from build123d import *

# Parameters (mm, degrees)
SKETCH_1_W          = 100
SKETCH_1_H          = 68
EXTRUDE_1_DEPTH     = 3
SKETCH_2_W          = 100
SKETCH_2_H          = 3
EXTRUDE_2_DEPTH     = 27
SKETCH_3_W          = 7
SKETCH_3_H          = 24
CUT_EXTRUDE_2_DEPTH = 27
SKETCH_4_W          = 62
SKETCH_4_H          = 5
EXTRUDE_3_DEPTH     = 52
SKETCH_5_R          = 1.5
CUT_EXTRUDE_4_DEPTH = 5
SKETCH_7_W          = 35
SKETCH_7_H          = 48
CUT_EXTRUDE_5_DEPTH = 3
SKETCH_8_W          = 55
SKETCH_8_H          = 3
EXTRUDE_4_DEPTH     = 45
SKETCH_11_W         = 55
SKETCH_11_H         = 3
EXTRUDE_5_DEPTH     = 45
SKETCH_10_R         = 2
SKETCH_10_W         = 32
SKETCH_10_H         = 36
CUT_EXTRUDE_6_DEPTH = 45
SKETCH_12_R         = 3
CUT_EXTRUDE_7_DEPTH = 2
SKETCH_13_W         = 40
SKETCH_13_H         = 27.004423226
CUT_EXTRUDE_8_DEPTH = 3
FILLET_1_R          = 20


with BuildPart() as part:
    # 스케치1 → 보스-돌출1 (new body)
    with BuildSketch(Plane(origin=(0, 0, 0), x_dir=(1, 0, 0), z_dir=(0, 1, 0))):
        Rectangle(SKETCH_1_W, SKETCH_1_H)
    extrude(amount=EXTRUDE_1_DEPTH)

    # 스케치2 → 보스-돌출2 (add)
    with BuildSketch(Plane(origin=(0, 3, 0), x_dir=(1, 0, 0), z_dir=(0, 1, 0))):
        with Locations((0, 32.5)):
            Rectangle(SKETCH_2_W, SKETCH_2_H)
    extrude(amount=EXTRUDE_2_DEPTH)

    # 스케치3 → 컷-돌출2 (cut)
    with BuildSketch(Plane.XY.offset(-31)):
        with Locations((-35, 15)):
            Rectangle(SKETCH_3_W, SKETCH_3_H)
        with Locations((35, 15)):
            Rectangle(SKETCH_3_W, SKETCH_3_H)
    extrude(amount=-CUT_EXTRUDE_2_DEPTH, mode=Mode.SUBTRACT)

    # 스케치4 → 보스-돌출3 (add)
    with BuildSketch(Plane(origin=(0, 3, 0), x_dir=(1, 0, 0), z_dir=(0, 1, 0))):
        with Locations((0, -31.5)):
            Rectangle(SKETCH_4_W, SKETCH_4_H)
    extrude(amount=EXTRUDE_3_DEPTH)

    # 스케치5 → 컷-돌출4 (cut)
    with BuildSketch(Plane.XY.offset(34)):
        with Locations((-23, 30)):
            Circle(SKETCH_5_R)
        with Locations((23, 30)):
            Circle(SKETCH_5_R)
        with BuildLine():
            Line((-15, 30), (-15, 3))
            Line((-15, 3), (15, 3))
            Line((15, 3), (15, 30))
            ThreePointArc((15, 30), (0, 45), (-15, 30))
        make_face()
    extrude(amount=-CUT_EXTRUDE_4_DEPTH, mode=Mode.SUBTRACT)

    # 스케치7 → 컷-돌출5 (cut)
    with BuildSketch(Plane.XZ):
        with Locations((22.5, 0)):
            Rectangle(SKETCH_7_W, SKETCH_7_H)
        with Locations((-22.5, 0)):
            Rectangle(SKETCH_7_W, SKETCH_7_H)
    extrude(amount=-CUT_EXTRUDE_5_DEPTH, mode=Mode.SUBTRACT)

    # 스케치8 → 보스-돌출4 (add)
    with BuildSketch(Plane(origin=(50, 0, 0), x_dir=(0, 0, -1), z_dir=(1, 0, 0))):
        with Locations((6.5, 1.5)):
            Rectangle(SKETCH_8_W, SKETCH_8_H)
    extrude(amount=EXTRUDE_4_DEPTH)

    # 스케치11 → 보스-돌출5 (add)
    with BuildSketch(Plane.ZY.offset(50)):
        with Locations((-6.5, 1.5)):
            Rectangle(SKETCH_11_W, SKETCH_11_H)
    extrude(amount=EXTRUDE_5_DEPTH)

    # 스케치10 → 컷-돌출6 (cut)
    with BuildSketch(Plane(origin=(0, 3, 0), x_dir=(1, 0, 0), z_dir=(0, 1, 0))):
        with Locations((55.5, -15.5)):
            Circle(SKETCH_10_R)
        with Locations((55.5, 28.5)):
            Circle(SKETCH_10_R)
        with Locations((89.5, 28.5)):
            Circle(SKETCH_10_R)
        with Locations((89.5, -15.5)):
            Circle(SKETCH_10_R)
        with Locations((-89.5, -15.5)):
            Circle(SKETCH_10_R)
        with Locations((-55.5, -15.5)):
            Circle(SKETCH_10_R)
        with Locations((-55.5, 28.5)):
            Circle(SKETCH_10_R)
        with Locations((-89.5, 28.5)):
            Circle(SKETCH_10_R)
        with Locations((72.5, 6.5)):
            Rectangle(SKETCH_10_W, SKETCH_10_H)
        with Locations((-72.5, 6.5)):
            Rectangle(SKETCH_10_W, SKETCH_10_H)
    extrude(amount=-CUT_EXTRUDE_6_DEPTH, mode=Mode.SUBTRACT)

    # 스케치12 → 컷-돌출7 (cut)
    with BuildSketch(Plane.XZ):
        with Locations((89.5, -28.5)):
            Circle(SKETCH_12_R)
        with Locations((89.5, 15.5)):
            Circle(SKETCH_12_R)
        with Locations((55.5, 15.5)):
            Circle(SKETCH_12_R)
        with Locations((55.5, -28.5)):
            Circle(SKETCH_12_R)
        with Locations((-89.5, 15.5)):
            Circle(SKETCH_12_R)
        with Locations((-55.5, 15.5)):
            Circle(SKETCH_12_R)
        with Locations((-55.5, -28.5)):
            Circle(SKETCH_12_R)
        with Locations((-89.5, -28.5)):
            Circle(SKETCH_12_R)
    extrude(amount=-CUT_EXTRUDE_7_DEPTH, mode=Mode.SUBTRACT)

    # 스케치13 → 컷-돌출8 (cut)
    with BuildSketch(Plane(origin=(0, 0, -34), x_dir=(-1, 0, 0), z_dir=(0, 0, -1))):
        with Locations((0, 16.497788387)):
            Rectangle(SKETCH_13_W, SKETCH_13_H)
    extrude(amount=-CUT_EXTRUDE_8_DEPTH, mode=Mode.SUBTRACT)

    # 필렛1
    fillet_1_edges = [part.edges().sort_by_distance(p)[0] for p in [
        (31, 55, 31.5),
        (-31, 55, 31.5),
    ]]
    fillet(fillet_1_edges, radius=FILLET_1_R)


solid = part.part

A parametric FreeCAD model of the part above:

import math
import FreeCAD as App
import Part
import Sketcher


def edges_at(feature, points):
    """Names of the edges that pass closest to the given points."""
    edges = feature.Shape.Edges
    near = lambda p: min(range(len(edges)), key=lambda i: edges[i].distToShape(Part.Vertex(*p))[0])
    return sorted({f"Edge{near(p) + 1}" for p in points})


def add_polygon(sketch, points):
    """Adds a closed chain of lines whose ends are joined by coincident constraints."""
    first, n = sketch.GeometryCount, len(points)
    for a, b in zip(points, points[1:] + points[:1]):
        sketch.addGeometry(Part.LineSegment(App.Vector(*a, 0), App.Vector(*b, 0)), False)
    for i in range(n):
        sketch.addConstraint(Sketcher.Constraint("Coincident", first + i, 2, first + (i + 1) % n, 1))

doc = App.newDocument("Part")
params = doc.addObject("Spreadsheet::Sheet", "Params")
for row, (alias, value) in enumerate([
    ("sketch1_width", "100 mm"),
    ("sketch1_height", "68 mm"),
    ("pad1_length", "3 mm"),
    ("sketch2_width", "100 mm"),
    ("sketch2_height", "3 mm"),
    ("pad2_length", "27 mm"),
    ("sketch3_width", "7 mm"),
    ("sketch3_height", "24 mm"),
    ("pocket1_length", "27 mm"),
    ("sketch4_width", "62 mm"),
    ("sketch4_height", "5 mm"),
    ("pad3_length", "52 mm"),
    ("sketch5_diameter", "3 mm"),
    ("sketch5_radius", "15 mm"),
    ("sketch5_height", "27 mm"),
    ("pocket2_length", "5 mm"),
    ("sketch6_width", "35 mm"),
    ("sketch6_height", "48 mm"),
    ("pocket3_length", "3 mm"),
    ("sketch7_width", "3 mm"),
    ("sketch7_height", "55 mm"),
    ("pad4_length", "45 mm"),
    ("sketch8_width", "3 mm"),
    ("sketch8_height", "55 mm"),
    ("pad5_length", "45 mm"),
    ("sketch9_diameter", "4 mm"),
    ("sketch9_width", "32 mm"),
    ("sketch9_height", "36 mm"),
    ("pocket4_length", "45 mm"),
    ("sketch10_diameter", "6 mm"),
    ("pocket5_length", "2 mm"),
    ("sketch11_width", "40 mm"),
    ("pocket6_length", "3 mm"),
    ("fillet_radius", "20 mm"),
], start=1):
    params.set(f"A{row}", alias)
    params.set(f"B{row}", "=" + value)
    params.setAlias(f"B{row}", alias)

body = doc.addObject("PartDesign::Body", "Body")

sketch1 = doc.addObject("Sketcher::SketchObject", "Sketch")
body.addObject(sketch1)
sketch1.AttachmentSupport = (doc.XZ_Plane, [""])
sketch1.MapMode = "FlatFace"
add_polygon(sketch1, [(-50, -34), (-50, 34), (50, 34), (50, -34)])
sketch1.addConstraint([
    Sketcher.Constraint("Vertical", 0),
    Sketcher.Constraint("Horizontal", 1),
    Sketcher.Constraint("Vertical", 2),
    Sketcher.Constraint("Horizontal", 3),
    Sketcher.Constraint("Symmetric", 0, 2, 2, 2, -1, 1),
    Sketcher.Constraint("DistanceX", 1, 1, 1, 2, 100.0),
    Sketcher.Constraint("DistanceY", 0, 1, 0, 2, 68.0),
])
sketch1.setExpression("Constraints[9]", "Params.sketch1_width")
sketch1.setExpression("Constraints[10]", "Params.sketch1_height")
pad1 = doc.addObject("PartDesign::Pad", "Pad")
body.addObject(pad1)
pad1.Profile = sketch1
pad1.setExpression("Length", "Params.pad1_length")
pad1.Reversed = True

sketch2 = doc.addObject("Sketcher::SketchObject", "Sketch001")
body.addObject(sketch2)
sketch2.AttachmentSupport = (doc.XZ_Plane, [""])
sketch2.MapMode = "FlatFace"
sketch2.AttachmentOffset = App.Placement(App.Vector(0, 0, -3), App.Rotation())
add_polygon(sketch2, [(-50, -34), (-50, -31), (50, -31), (50, -34)])
sketch2.addConstraint([
    Sketcher.Constraint("Vertical", 0),
    Sketcher.Constraint("Horizontal", 1),
    Sketcher.Constraint("Vertical", 2),
    Sketcher.Constraint("Horizontal", 3),
    Sketcher.Constraint("DistanceX", 1, 1, 1, 2, 100.0),
    Sketcher.Constraint("DistanceY", 0, 1, 0, 2, 3.0),
    Sketcher.Constraint("DistanceX", 0, 2, -1, 1, 50.0),
    Sketcher.Constraint("DistanceY", 0, 2, -1, 1, 31.0),
])
sketch2.setExpression("Constraints[8]", "Params.sketch2_width")
sketch2.setExpression("Constraints[9]", "Params.sketch2_height")
pad2 = doc.addObject("PartDesign::Pad", "Pad001")
body.addObject(pad2)
pad2.Profile = sketch2
pad2.setExpression("Length", "Params.pad2_length")
pad2.Reversed = True

sketch3 = doc.addObject("Sketcher::SketchObject", "Sketch002")
body.addObject(sketch3)
sketch3.AttachmentSupport = (doc.XY_Plane, [""])
sketch3.MapMode = "FlatFace"
sketch3.AttachmentOffset = App.Placement(App.Vector(0, 0, -31), App.Rotation())
add_polygon(sketch3, [(-38, 27), (-38, 3), (-32, 3), (-32, 27)])
add_polygon(sketch3, [(32, 27), (32, 3), (38, 3), (38, 27)])
sketch3.addConstraint([
    Sketcher.Constraint("Vertical", 0),
    Sketcher.Constraint("Horizontal", 1),
    Sketcher.Constraint("Vertical", 2),
    Sketcher.Constraint("Horizontal", 3),
    Sketcher.Constraint("Vertical", 4),
    Sketcher.Constraint("Horizontal", 5),
    Sketcher.Constraint("Vertical", 6),
    Sketcher.Constraint("Horizontal", 7),
    Sketcher.Constraint("Symmetric", 1, 2, 4, 2, -2),
    Sketcher.Constraint("Symmetric", 3, 2, 6, 2, -2),
    Sketcher.Constraint("DistanceX", 1, 1, 1, 2, 7.0),
    Sketcher.Constraint("DistanceY", 0, 2, 0, 1, 24.0),
    Sketcher.Constraint("DistanceY", -1, 1, 0, 2, 3.0),
    Sketcher.Constraint("DistanceX", 1, 2, 4, 2, 63.0),
])
sketch3.setExpression("Constraints[18]", "Params.sketch3_width")
sketch3.setExpression("Constraints[19]", "Params.sketch3_height")
pocket1 = doc.addObject("PartDesign::Pocket", "Pocket")
body.addObject(pocket1)
pocket1.Profile = sketch3
pocket1.setExpression("Length", "Params.pocket1_length")

sketch4 = doc.addObject("Sketcher::SketchObject", "Sketch003")
body.addObject(sketch4)
sketch4.AttachmentSupport = (doc.XZ_Plane, [""])
sketch4.MapMode = "FlatFace"
sketch4.AttachmentOffset = App.Placement(App.Vector(0, 0, -3), App.Rotation())
add_polygon(sketch4, [(-31, 29), (-31, 34), (31, 34), (31, 29)])
sketch4.addConstraint([
    Sketcher.Constraint("Vertical", 0),
    Sketcher.Constraint("Horizontal", 1),
    Sketcher.Constraint("Vertical", 2),
    Sketcher.Constraint("Horizontal", 3),
    Sketcher.Constraint("DistanceX", 1, 1, 1, 2, 62.0),
    Sketcher.Constraint("DistanceY", 0, 1, 0, 2, 5.0),
    Sketcher.Constraint("DistanceX", 0, 2, -1, 1, 31.0),
    Sketcher.Constraint("DistanceY", -1, 1, 0, 2, 34.0),
])
sketch4.setExpression("Constraints[8]", "Params.sketch4_width")
sketch4.setExpression("Constraints[9]", "Params.sketch4_height")
pad3 = doc.addObject("PartDesign::Pad", "Pad002")
body.addObject(pad3)
pad3.Profile = sketch4
pad3.setExpression("Length", "Params.pad3_length")
pad3.Reversed = True

sketch5 = doc.addObject("Sketcher::SketchObject", "Sketch004")
body.addObject(sketch5)
sketch5.AttachmentSupport = (doc.XY_Plane, [""])
sketch5.MapMode = "FlatFace"
sketch5.AttachmentOffset = App.Placement(App.Vector(0, 0, 34), App.Rotation())
sketch5.addGeometry([
    Part.Circle(App.Vector(-23, 30, 0), App.Vector(0, 0, 1), 1.5),
    Part.Circle(App.Vector(23, 30, 0), App.Vector(0, 0, 1), 1.5),
    Part.LineSegment(App.Vector(-15, 30, 0), App.Vector(-15, 3, 0)),
    Part.LineSegment(App.Vector(-15, 3, 0), App.Vector(15, 3, 0)),
    Part.LineSegment(App.Vector(15, 3, 0), App.Vector(15, 30, 0)),
    Part.ArcOfCircle(Part.Circle(App.Vector(0, 30, 0), App.Vector(0, 0, 1), 15), math.radians(0), math.radians(180)),
], False)
sketch5.addConstraint([
    Sketcher.Constraint("Coincident", 2, 2, 3, 1),
    Sketcher.Constraint("Coincident", 3, 2, 4, 1),
    Sketcher.Constraint("Tangent", 4, 2, 5, 1),
    Sketcher.Constraint("Tangent", 5, 2, 2, 1),
    Sketcher.Constraint("Vertical", 2),
    Sketcher.Constraint("Horizontal", 3),
    Sketcher.Constraint("Vertical", 4),
    Sketcher.Constraint("Equal", 0, 1),
    Sketcher.Constraint("Symmetric", 0, 3, 1, 3, -2),
    Sketcher.Constraint("PointOnObject", 5, 3, -2),
    Sketcher.Constraint("Horizontal", 1, 3, 5, 3),
    Sketcher.Constraint("Diameter", 0, 3.0),
    Sketcher.Constraint("Radius", 5, 15.0),
    Sketcher.Constraint("DistanceY", 2, 2, 2, 1, 27.0),
    Sketcher.Constraint("DistanceX", 0, 3, -1, 1, 23.0),
    Sketcher.Constraint("DistanceY", -1, 1, 0, 3, 30.0),
])
sketch5.setExpression("Constraints[11]", "Params.sketch5_diameter")
sketch5.setExpression("Constraints[12]", "Params.sketch5_radius")
sketch5.setExpression("Constraints[13]", "Params.sketch5_height")
pocket2 = doc.addObject("PartDesign::Pocket", "Pocket001")
body.addObject(pocket2)
pocket2.Profile = sketch5
pocket2.setExpression("Length", "Params.pocket2_length")

sketch6 = doc.addObject("Sketcher::SketchObject", "Sketch005")
body.addObject(sketch6)
sketch6.AttachmentSupport = (doc.XZ_Plane, [""])
sketch6.MapMode = "FlatFace"
add_polygon(sketch6, [(5, 24), (5, -24), (40, -24), (40, 24)])
add_polygon(sketch6, [(-40, 24), (-40, -24), (-5, -24), (-5, 24)])
sketch6.addConstraint([
    Sketcher.Constraint("Vertical", 0),
    Sketcher.Constraint("Horizontal", 1),
    Sketcher.Constraint("Vertical", 2),
    Sketcher.Constraint("Horizontal", 3),
    Sketcher.Constraint("Vertical", 4),
    Sketcher.Constraint("Horizontal", 5),
    Sketcher.Constraint("Vertical", 6),
    Sketcher.Constraint("Horizontal", 7),
    Sketcher.Constraint("Symmetric", 2, 2, 4, 2, -1, 1),
    Sketcher.Constraint("Symmetric", 0, 2, 6, 2, -1, 1),
    Sketcher.Constraint("Horizontal", 1, 2, 4, 2),
    Sketcher.Constraint("DistanceX", 1, 1, 1, 2, 35.0),
    Sketcher.Constraint("DistanceY", 0, 2, 0, 1, 48.0),
    Sketcher.Constraint("DistanceX", -1, 1, 0, 2, 5.0),
])
sketch6.setExpression("Constraints[19]", "Params.sketch6_width")
sketch6.setExpression("Constraints[20]", "Params.sketch6_height")
pocket3 = doc.addObject("PartDesign::Pocket", "Pocket002")
body.addObject(pocket3)
pocket3.Profile = sketch6
pocket3.setExpression("Length", "Params.pocket3_length")

sketch7 = doc.addObject("Sketcher::SketchObject", "Sketch006")
body.addObject(sketch7)
sketch7.AttachmentSupport = (doc.YZ_Plane, [""])
sketch7.MapMode = "FlatFace"
sketch7.AttachmentOffset = App.Placement(App.Vector(0, 0, 50), App.Rotation())
add_polygon(sketch7, [(3, 21), (0, 21), (0, -34), (3, -34)])
sketch7.addConstraint([
    Sketcher.Constraint("Horizontal", 0),
    Sketcher.Constraint("Vertical", 1),
    Sketcher.Constraint("Horizontal", 2),
    Sketcher.Constraint("Vertical", 3),
    Sketcher.Constraint("PointOnObject", 0, 2, -2),
    Sketcher.Constraint("DistanceX", 0, 2, 0, 1, 3.0),
    Sketcher.Constraint("DistanceY", 1, 2, 1, 1, 55.0),
    Sketcher.Constraint("DistanceY", -1, 1, 0, 2, 21.0),
])
sketch7.setExpression("Constraints[9]", "Params.sketch7_width")
sketch7.setExpression("Constraints[10]", "Params.sketch7_height")
pad4 = doc.addObject("PartDesign::Pad", "Pad003")
body.addObject(pad4)
pad4.Profile = sketch7
pad4.setExpression("Length", "Params.pad4_length")

sketch8 = doc.addObject("Sketcher::SketchObject", "Sketch007")
body.addObject(sketch8)
sketch8.AttachmentSupport = (doc.YZ_Plane, [""])
sketch8.MapMode = "FlatFace"
sketch8.AttachmentOffset = App.Placement(App.Vector(0, 0, -50), App.Rotation())
add_polygon(sketch8, [(3, -34), (0, -34), (0, 21), (3, 21)])
sketch8.addConstraint([
    Sketcher.Constraint("Horizontal", 0),
    Sketcher.Constraint("Vertical", 1),
    Sketcher.Constraint("Horizontal", 2),
    Sketcher.Constraint("Vertical", 3),
    Sketcher.Constraint("PointOnObject", 0, 2, -2),
    Sketcher.Constraint("DistanceX", 0, 2, 0, 1, 3.0),
    Sketcher.Constraint("DistanceY", 1, 1, 1, 2, 55.0),
    Sketcher.Constraint("DistanceY", 0, 2, -1, 1, 34.0),
])
sketch8.setExpression("Constraints[9]", "Params.sketch8_width")
sketch8.setExpression("Constraints[10]", "Params.sketch8_height")
pad5 = doc.addObject("PartDesign::Pad", "Pad004")
body.addObject(pad5)
pad5.Profile = sketch8
pad5.setExpression("Length", "Params.pad5_length")
pad5.Reversed = True

sketch9 = doc.addObject("Sketcher::SketchObject", "Sketch008")
body.addObject(sketch9)
sketch9.AttachmentSupport = (doc.XZ_Plane, [""])
sketch9.MapMode = "FlatFace"
sketch9.AttachmentOffset = App.Placement(App.Vector(0, 0, -3), App.Rotation())
sketch9.addGeometry(Part.Circle(App.Vector(55.5, 15.5, 0), App.Vector(0, 0, 1), 2), False)
sketch9.addGeometry(Part.Circle(App.Vector(55.5, -28.5, 0), App.Vector(0, 0, 1), 2), False)
sketch9.addGeometry(Part.Circle(App.Vector(89.5, -28.5, 0), App.Vector(0, 0, 1), 2), False)
sketch9.addGeometry(Part.Circle(App.Vector(89.5, 15.5, 0), App.Vector(0, 0, 1), 2), False)
sketch9.addGeometry(Part.Circle(App.Vector(-89.5, 15.5, 0), App.Vector(0, 0, 1), 2), False)
sketch9.addGeometry(Part.Circle(App.Vector(-55.5, 15.5, 0), App.Vector(0, 0, 1), 2), False)
sketch9.addGeometry(Part.Circle(App.Vector(-55.5, -28.5, 0), App.Vector(0, 0, 1), 2), False)
sketch9.addGeometry(Part.Circle(App.Vector(-89.5, -28.5, 0), App.Vector(0, 0, 1), 2), False)
add_polygon(sketch9, [(56.5, -24.5), (56.5, 11.5), (88.5, 11.5), (88.5, -24.5)])
add_polygon(sketch9, [(-88.5, -24.5), (-88.5, 11.5), (-56.5, 11.5), (-56.5, -24.5)])
sketch9.addConstraint([
    Sketcher.Constraint("Vertical", 8),
    Sketcher.Constraint("Horizontal", 9),
    Sketcher.Constraint("Vertical", 10),
    Sketcher.Constraint("Horizontal", 11),
    Sketcher.Constraint("Vertical", 12),
    Sketcher.Constraint("Horizontal", 13),
    Sketcher.Constraint("Vertical", 14),
    Sketcher.Constraint("Horizontal", 15),
    Sketcher.Constraint("Equal", 0, 1),
    Sketcher.Constraint("Equal", 1, 2),
    Sketcher.Constraint("Equal", 2, 3),
    Sketcher.Constraint("Equal", 3, 4),
    Sketcher.Constraint("Equal", 4, 5),
    Sketcher.Constraint("Equal", 5, 6),
    Sketcher.Constraint("Equal", 6, 7),
    Sketcher.Constraint("Symmetric", 3, 3, 4, 3, -2),
    Sketcher.Constraint("Symmetric", 0, 3, 5, 3, -2),
    Sketcher.Constraint("Symmetric", 1, 3, 6, 3, -2),
    Sketcher.Constraint("Symmetric", 2, 3, 7, 3, -2),
    Sketcher.Constraint("Symmetric", 9, 2, 12, 2, -2),
    Sketcher.Constraint("Symmetric", 11, 2, 14, 2, -2),
    Sketcher.Constraint("Horizontal", 1, 3, 2, 3),
    Sketcher.Constraint("Horizontal", 0, 3, 3, 3),
    Sketcher.Constraint("Vertical", 0, 3, 1, 3),
    Sketcher.Constraint("Vertical", 2, 3, 3, 3),
    Sketcher.Constraint("Diameter", 0, 4.0),
    Sketcher.Constraint("DistanceX", 9, 1, 9, 2, 32.0),
    Sketcher.Constraint("DistanceY", 8, 1, 8, 2, 36.0),
    Sketcher.Constraint("DistanceY", 1, 3, 0, 3, 44.0),
    Sketcher.Constraint("DistanceX", 1, 3, 2, 3, 34.0),
    Sketcher.Constraint("DistanceX", 4, 3, 0, 3, 145.0),
    Sketcher.Constraint("DistanceX", 0, 3, 8, 2, 1.0),
    Sketcher.Constraint("DistanceY", 8, 2, 0, 3, 4.0),
    Sketcher.Constraint("DistanceY", -1, 1, 0, 3, 15.5),
])
sketch9.setExpression("Constraints[33]", "Params.sketch9_diameter")
sketch9.setExpression("Constraints[34]", "Params.sketch9_width")
sketch9.setExpression("Constraints[35]", "Params.sketch9_height")
pocket4 = doc.addObject("PartDesign::Pocket", "Pocket003")
body.addObject(pocket4)
pocket4.Profile = sketch9
pocket4.setExpression("Length", "Params.pocket4_length")
pocket4.Reversed = True

sketch10 = doc.addObject("Sketcher::SketchObject", "Sketch009")
body.addObject(sketch10)
sketch10.AttachmentSupport = (doc.XZ_Plane, [""])
sketch10.MapMode = "FlatFace"
sketch10.addGeometry([
    Part.Circle(App.Vector(89.5, -28.5, 0), App.Vector(0, 0, 1), 3),
    Part.Circle(App.Vector(89.5, 15.5, 0), App.Vector(0, 0, 1), 3),
    Part.Circle(App.Vector(55.5, 15.5, 0), App.Vector(0, 0, 1), 3),
    Part.Circle(App.Vector(55.5, -28.5, 0), App.Vector(0, 0, 1), 3),
    Part.Circle(App.Vector(-89.5, 15.5, 0), App.Vector(0, 0, 1), 3),
    Part.Circle(App.Vector(-55.5, 15.5, 0), App.Vector(0, 0, 1), 3),
    Part.Circle(App.Vector(-55.5, -28.5, 0), App.Vector(0, 0, 1), 3),
    Part.Circle(App.Vector(-89.5, -28.5, 0), App.Vector(0, 0, 1), 3),
], False)
sketch10.addConstraint([
    Sketcher.Constraint("Equal", 0, 1),
    Sketcher.Constraint("Equal", 1, 2),
    Sketcher.Constraint("Equal", 2, 3),
    Sketcher.Constraint("Equal", 3, 4),
    Sketcher.Constraint("Equal", 4, 5),
    Sketcher.Constraint("Equal", 5, 6),
    Sketcher.Constraint("Equal", 6, 7),
    Sketcher.Constraint("Symmetric", 1, 3, 4, 3, -2),
    Sketcher.Constraint("Symmetric", 2, 3, 5, 3, -2),
    Sketcher.Constraint("Symmetric", 3, 3, 6, 3, -2),
    Sketcher.Constraint("Symmetric", 0, 3, 7, 3, -2),
    Sketcher.Constraint("Horizontal", 1, 3, 2, 3),
    Sketcher.Constraint("Horizontal", 0, 3, 3, 3),
    Sketcher.Constraint("Vertical", 0, 3, 1, 3),
    Sketcher.Constraint("Vertical", 2, 3, 3, 3),
    Sketcher.Constraint("Diameter", 0, 6.0),
    Sketcher.Constraint("DistanceY", 0, 3, 1, 3, 44.0),
    Sketcher.Constraint("DistanceX", 2, 3, 1, 3, 34.0),
    Sketcher.Constraint("DistanceX", 4, 3, 2, 3, 145.0),
    Sketcher.Constraint("DistanceY", 0, 3, -1, 1, 28.5),
])
sketch10.setExpression("Constraints[15]", "Params.sketch10_diameter")
pocket5 = doc.addObject("PartDesign::Pocket", "Pocket004")
body.addObject(pocket5)
pocket5.Profile = sketch10
pocket5.setExpression("Length", "Params.pocket5_length")

sketch11 = doc.addObject("Sketcher::SketchObject", "Sketch010")
body.addObject(sketch11)
sketch11.AttachmentSupport = (doc.XY_Plane, [""])
sketch11.MapMode = "FlatFace"
sketch11.AttachmentOffset = App.Placement(App.Vector(0, 0, -34), App.Rotation())
add_polygon(sketch11, [(20, 30), (20, 3), (-20, 3), (-20, 30)])
sketch11.addConstraint([
    Sketcher.Constraint("Vertical", 0),
    Sketcher.Constraint("Horizontal", 1),
    Sketcher.Constraint("Vertical", 2),
    Sketcher.Constraint("Horizontal", 3),
    Sketcher.Constraint("DistanceX", 1, 2, 1, 1, 40.0),
    Sketcher.Constraint("DistanceX", -1, 1, 0, 2, 20.0),
    Sketcher.Constraint("DistanceY", -1, 1, 2, 2, 30.0),
    Sketcher.Constraint("DistanceY", 0, 2, 0, 1, 27.004423),
])
sketch11.setExpression("Constraints[8]", "Params.sketch11_width")
pocket6 = doc.addObject("PartDesign::Pocket", "Pocket005")
body.addObject(pocket6)
pocket6.Profile = sketch11
pocket6.setExpression("Length", "Params.pocket6_length")
pocket6.Reversed = True
doc.recompute()

fillet = doc.addObject("PartDesign::Fillet", "Fillet")
body.addObject(fillet)
fillet.Base = (pocket6, edges_at(pocket6, [(31, 55, 31.5), (-31, 55, 31.5)]))
fillet.setExpression("Radius", "Params.fillet_radius")

doc.recompute()
